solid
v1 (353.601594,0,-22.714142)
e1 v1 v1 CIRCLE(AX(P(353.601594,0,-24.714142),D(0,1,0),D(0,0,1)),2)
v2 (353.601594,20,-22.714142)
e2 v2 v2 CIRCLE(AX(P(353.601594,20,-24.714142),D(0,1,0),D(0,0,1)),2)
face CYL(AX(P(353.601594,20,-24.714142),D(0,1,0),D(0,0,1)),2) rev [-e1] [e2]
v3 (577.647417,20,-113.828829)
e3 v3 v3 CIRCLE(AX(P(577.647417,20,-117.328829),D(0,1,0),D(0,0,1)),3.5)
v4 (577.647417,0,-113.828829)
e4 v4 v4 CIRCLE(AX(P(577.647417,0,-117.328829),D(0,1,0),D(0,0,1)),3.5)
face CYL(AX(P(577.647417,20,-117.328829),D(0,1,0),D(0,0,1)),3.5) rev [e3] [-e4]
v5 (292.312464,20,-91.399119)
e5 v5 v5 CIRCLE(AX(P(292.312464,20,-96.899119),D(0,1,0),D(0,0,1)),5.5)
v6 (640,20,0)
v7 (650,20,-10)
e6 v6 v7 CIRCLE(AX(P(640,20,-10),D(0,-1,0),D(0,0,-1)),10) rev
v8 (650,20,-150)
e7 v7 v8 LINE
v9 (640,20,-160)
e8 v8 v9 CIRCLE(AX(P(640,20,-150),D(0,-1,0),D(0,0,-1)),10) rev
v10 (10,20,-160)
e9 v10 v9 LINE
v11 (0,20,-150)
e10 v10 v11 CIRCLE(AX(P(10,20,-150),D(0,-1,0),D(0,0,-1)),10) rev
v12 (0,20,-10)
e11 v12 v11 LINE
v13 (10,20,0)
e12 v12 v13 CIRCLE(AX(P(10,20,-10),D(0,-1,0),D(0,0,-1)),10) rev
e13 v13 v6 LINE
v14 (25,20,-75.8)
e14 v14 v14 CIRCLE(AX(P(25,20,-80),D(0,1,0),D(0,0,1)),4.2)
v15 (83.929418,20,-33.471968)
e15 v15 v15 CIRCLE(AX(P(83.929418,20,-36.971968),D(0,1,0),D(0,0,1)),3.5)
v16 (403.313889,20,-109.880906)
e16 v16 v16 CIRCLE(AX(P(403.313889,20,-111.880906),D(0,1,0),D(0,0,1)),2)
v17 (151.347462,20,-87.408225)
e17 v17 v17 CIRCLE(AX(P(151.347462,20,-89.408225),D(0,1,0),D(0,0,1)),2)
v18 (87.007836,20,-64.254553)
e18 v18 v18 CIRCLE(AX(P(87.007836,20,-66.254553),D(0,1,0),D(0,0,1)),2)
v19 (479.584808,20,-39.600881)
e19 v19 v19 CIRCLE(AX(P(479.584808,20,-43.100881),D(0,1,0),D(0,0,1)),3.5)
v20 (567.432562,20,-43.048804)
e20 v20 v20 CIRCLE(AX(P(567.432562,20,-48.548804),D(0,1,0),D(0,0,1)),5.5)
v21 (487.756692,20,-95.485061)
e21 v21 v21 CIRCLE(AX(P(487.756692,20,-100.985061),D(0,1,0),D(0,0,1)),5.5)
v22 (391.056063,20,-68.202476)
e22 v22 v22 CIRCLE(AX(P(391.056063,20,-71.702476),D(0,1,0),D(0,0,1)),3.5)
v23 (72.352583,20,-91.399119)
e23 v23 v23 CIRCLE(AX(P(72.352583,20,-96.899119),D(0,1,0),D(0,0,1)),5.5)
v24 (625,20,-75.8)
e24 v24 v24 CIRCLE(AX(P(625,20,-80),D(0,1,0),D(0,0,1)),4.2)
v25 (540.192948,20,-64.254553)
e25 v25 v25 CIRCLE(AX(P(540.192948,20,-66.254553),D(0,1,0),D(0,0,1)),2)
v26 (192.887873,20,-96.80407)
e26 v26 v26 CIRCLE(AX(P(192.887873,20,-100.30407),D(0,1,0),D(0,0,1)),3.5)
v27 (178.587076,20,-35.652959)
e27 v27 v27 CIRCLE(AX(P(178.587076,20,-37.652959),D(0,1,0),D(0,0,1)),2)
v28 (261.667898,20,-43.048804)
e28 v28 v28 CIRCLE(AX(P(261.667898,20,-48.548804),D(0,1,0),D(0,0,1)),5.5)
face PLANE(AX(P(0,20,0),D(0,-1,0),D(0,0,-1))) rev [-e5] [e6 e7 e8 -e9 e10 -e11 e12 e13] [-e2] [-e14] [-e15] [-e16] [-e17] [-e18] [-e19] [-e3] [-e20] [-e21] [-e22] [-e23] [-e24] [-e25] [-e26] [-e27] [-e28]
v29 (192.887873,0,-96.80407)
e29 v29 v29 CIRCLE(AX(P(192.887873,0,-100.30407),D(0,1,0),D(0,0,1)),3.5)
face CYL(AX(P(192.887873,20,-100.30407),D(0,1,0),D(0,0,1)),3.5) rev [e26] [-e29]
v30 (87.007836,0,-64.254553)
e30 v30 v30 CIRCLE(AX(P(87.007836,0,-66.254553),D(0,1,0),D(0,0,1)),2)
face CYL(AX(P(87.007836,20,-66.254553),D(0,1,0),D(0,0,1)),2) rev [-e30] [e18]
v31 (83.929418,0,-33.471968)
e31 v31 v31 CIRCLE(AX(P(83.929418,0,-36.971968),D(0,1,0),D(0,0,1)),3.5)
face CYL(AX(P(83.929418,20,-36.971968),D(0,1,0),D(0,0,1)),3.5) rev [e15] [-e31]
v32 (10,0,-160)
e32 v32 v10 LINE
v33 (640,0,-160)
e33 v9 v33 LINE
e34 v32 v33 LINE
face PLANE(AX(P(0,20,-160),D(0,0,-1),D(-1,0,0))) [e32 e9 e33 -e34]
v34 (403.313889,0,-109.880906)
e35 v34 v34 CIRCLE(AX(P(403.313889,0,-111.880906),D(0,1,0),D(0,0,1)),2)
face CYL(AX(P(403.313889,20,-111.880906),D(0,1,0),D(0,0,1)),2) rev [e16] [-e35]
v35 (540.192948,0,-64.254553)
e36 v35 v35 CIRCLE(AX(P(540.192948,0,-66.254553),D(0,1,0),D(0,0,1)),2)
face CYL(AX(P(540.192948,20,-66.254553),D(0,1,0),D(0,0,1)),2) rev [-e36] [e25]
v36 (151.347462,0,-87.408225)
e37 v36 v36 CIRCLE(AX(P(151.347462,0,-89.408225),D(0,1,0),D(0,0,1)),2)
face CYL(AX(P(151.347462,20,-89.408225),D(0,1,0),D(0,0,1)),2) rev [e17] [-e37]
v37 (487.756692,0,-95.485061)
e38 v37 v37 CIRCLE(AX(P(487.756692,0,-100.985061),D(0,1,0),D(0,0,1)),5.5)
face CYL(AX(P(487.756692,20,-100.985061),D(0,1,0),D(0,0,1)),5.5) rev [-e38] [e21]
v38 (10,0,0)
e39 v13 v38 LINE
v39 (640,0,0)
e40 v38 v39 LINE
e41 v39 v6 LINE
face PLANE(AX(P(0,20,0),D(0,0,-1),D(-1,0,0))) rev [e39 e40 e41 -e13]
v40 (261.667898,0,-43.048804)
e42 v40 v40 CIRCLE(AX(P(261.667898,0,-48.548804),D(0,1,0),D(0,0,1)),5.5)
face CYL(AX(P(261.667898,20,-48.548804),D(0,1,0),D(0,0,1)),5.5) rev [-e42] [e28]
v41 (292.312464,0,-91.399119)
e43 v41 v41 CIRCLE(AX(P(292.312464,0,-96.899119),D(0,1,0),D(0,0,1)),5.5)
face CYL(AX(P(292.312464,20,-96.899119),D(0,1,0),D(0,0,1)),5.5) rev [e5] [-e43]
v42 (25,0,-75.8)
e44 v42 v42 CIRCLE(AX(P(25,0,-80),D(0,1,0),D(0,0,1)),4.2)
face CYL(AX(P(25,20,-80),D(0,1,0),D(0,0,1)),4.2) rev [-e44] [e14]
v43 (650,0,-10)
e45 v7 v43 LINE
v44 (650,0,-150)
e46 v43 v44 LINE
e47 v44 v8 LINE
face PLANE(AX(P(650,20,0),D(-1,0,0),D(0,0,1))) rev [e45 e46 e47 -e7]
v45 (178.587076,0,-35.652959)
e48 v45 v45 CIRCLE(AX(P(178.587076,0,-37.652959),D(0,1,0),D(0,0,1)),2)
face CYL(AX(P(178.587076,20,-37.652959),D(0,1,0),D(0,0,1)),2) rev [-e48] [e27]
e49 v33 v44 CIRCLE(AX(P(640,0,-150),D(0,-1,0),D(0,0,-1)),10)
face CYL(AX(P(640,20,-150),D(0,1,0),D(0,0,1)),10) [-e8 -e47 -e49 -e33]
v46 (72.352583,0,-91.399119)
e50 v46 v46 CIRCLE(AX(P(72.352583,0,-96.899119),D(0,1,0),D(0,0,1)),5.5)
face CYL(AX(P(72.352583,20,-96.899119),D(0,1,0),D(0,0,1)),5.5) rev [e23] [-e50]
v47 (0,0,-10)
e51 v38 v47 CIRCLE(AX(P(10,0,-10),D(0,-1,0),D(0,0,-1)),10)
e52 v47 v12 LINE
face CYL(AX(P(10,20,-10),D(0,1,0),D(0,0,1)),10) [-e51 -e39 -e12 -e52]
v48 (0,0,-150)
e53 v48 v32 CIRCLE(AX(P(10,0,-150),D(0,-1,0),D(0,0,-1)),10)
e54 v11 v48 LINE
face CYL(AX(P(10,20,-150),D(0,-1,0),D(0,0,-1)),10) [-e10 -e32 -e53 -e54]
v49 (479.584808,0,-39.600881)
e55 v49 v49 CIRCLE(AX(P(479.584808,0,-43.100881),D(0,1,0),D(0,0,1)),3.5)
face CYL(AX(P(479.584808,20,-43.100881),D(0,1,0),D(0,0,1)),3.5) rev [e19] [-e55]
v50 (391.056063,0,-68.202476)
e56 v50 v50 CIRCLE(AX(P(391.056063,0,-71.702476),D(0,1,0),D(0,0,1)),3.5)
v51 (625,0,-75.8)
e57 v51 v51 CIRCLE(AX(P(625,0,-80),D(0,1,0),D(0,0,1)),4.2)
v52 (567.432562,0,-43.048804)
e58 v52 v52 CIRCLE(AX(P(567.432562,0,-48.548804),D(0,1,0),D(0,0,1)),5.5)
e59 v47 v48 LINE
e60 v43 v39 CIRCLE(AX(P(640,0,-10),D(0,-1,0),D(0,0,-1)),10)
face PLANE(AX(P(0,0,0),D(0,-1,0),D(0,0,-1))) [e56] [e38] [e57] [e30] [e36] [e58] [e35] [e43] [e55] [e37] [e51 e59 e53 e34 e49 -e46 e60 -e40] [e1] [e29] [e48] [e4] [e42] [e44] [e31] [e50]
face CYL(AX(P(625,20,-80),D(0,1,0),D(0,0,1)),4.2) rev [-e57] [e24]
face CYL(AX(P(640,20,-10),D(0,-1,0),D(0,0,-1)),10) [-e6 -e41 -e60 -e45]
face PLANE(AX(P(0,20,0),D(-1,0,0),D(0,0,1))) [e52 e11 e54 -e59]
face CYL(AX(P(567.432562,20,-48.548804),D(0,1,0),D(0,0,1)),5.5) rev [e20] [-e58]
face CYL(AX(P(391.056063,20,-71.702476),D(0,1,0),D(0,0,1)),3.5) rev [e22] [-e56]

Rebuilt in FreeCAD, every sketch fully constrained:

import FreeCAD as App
import Part
import Sketcher
from FreeCAD import Vector
Q = App.Units.Quantity


def edges_at(feature, points):
    """Names of the edges that pass closest to the given points."""
    edges = feature.Shape.Edges
    near = lambda p: min(range(len(edges)), key=lambda i: edges[i].distToShape(Part.Vertex(*p))[0])
    return sorted({f"Edge{near(p) + 1}" for p in points})

doc = App.newDocument("Part")
params = doc.addObject("Spreadsheet::Sheet", "Params")
for row, (alias, value) in enumerate([
    ("sketch1_width", "650 mm"),
    ("sketch1_height", "160 mm"),
    ("pad1_length", "20 mm"),
    ("fillet_radius", "10 mm"),
    ("sketch2_diameter", "11 mm"),
    ("hole_diameter", "11 mm"),
    ("sketch3_diameter", "7 mm"),
    ("hole2_diameter", "7 mm"),
    ("sketch4_diameter", "4 mm"),
    ("hole3_diameter", "4 mm"),
    ("sketch5_diameter", "8.4 mm"),
    ("hole4_diameter", "8.4 mm"),
], start=1):
    params.set(f"A{row}", alias)
    params.set(f"B{row}", "=" + value)
    params.setAlias(f"B{row}", alias)

body = doc.addObject("PartDesign::Body", "Body")

sketch1 = doc.addObject("Sketcher::SketchObject", "Sketch")
body.addObject(sketch1)
sketch1.AttachmentSupport = (doc.XZ_Plane, [""])
sketch1.MapMode = "FlatFace"
sketch1.addGeometry(Part.LineSegment(Vector(0, -160, 0), Vector(0, 0, 0)), False)
sketch1.addGeometry(Part.LineSegment(Vector(0, 0, 0), Vector(650, 0, 0)), False)
sketch1.addGeometry(Part.LineSegment(Vector(650, 0, 0), Vector(650, -160, 0)), False)
sketch1.addGeometry(Part.LineSegment(Vector(650, -160, 0), Vector(0, -160, 0)), False)
sketch1.addConstraint(Sketcher.Constraint("Coincident", 0, 2, 1, 1))
sketch1.addConstraint(Sketcher.Constraint("Coincident", 1, 2, 2, 1))
sketch1.addConstraint(Sketcher.Constraint("Coincident", 2, 2, 3, 1))
sketch1.addConstraint(Sketcher.Constraint("Coincident", 3, 2, 0, 1))
sketch1.addConstraint(Sketcher.Constraint("Vertical", 0))
sketch1.addConstraint(Sketcher.Constraint("Horizontal", 1))
sketch1.addConstraint(Sketcher.Constraint("Vertical", 2))
sketch1.addConstraint(Sketcher.Constraint("Horizontal", 3))
sketch1.addConstraint(Sketcher.Constraint("Coincident", 0, 2, -1, 1))
sketch1.addConstraint(Sketcher.Constraint("DistanceX", 1, 1, 1, 2, Q("650 mm")))
sketch1.addConstraint(Sketcher.Constraint("DistanceY", 0, 1, 0, 2, Q("160 mm")))
sketch1.setExpression("Constraints[9]", "Params.sketch1_width")
sketch1.setExpression("Constraints[10]", "Params.sketch1_height")
pad1 = doc.addObject("PartDesign::Pad", "Pad")
body.addObject(pad1)
pad1.Profile = sketch1
pad1.setExpression("Length", "Params.pad1_length")
pad1.Reversed = True
doc.recompute()

fillet = doc.addObject("PartDesign::Fillet", "Fillet")
body.addObject(fillet)
fillet.Base = (pad1, edges_at(pad1, [
    (0, 10, 0),
    (650, 10, 0),
    (650, 10, -160),
    (0, 10, -160),
]))
fillet.setExpression("Radius", "Params.fillet_radius")

sketch2 = doc.addObject("Sketcher::SketchObject", "Sketch001")
body.addObject(sketch2)
sketch2.AttachmentSupport = (doc.XZ_Plane, [""])
sketch2.MapMode = "FlatFace"
sketch2.AttachmentOffset = App.Placement(Vector(0, 0, -20), App.Rotation())
sketch2.addGeometry(Part.Circle(Vector(72, -97, 0), Vector(0, 0, 1), 6), False)
sketch2.addGeometry(Part.Circle(Vector(262, -49, 0), Vector(0, 0, 1), 6), False)
sketch2.addGeometry(Part.Circle(Vector(488, -101, 0), Vector(0, 0, 1), 6), False)
sketch2.addGeometry(Part.Circle(Vector(567, -49, 0), Vector(0, 0, 1), 6), False)
sketch2.addGeometry(Part.Circle(Vector(292, -97, 0), Vector(0, 0, 1), 6), False)
sketch2.addConstraint(Sketcher.Constraint("Equal", 0, 1))
sketch2.addConstraint(Sketcher.Constraint("Equal", 1, 2))
sketch2.addConstraint(Sketcher.Constraint("Equal", 2, 3))
sketch2.addConstraint(Sketcher.Constraint("Equal", 3, 4))
sketch2.addConstraint(Sketcher.Constraint("Horizontal", 1, 3, 3, 3))
sketch2.addConstraint(Sketcher.Constraint("Horizontal", 0, 3, 4, 3))
sketch2.addConstraint(Sketcher.Constraint("Diameter", 0, Q("11 mm")))
sketch2.addConstraint(Sketcher.Constraint("DistanceX", -1, 1, 1, 3, Q("261.667898 mm")))
sketch2.addConstraint(Sketcher.Constraint("DistanceX", 4, 3, 3, 3, Q("275.120099 mm")))
sketch2.addConstraint(Sketcher.Constraint("DistanceY", 0, 3, -1, 1, Q("96.899119 mm")))
sketch2.addConstraint(Sketcher.Constraint("DistanceY", 2, 3, -1, 1, Q("100.985061 mm")))
sketch2.addConstraint(Sketcher.Constraint("DistanceX", 0, 3, 2, 3, Q("415.404109 mm")))
sketch2.addConstraint(Sketcher.Constraint("DistanceX", 2, 3, 3, 3, Q("79.67587 mm")))
sketch2.addConstraint(Sketcher.Constraint("DistanceX", -1, 1, 0, 3, Q("72.352583 mm")))
sketch2.addConstraint(Sketcher.Constraint("DistanceY", 1, 3, -1, 1, Q("48.548804 mm")))
sketch2.setExpression("Constraints[6]", "Params.sketch2_diameter")
doc.recompute()
hole = doc.addObject("PartDesign::Hole", "Hole")
body.addObject(hole)
hole.Profile = sketch2
hole.ThreadType = "None"
hole.setExpression("Diameter", "Params.hole_diameter")
hole.DepthType = "ThroughAll"
hole.Reversed = True

sketch3 = doc.addObject("Sketcher::SketchObject", "Sketch002")
body.addObject(sketch3)
sketch3.AttachmentSupport = (doc.XZ_Plane, [""])
sketch3.MapMode = "FlatFace"
sketch3.AttachmentOffset = App.Placement(Vector(0, 0, -20), App.Rotation())
sketch3.addGeometry(Part.Circle(Vector(192.9, -100.3, 0), Vector(0, 0, 1), 3.5), False)
sketch3.addGeometry(Part.Circle(Vector(83.9, -37, 0), Vector(0, 0, 1), 3.5), False)
sketch3.addGeometry(Part.Circle(Vector(391.1, -71.7, 0), Vector(0, 0, 1), 3.5), False)
sketch3.addGeometry(Part.Circle(Vector(577.6, -117.3, 0), Vector(0, 0, 1), 3.5), False)
sketch3.addGeometry(Part.Circle(Vector(479.6, -43.1, 0), Vector(0, 0, 1), 3.5), False)
sketch3.addConstraint(Sketcher.Constraint("Equal", 0, 1))
sketch3.addConstraint(Sketcher.Constraint("Equal", 1, 2))
sketch3.addConstraint(Sketcher.Constraint("Equal", 2, 3))
sketch3.addConstraint(Sketcher.Constraint("Equal", 3, 4))
sketch3.addConstraint(Sketcher.Constraint("Diameter", 0, Q("7 mm")))
sketch3.addConstraint(Sketcher.Constraint("DistanceX", 1, 3, 3, 3, Q("493.717999 mm")))
sketch3.addConstraint(Sketcher.Constraint("DistanceY", 0, 3, 1, 3, Q("63.332102 mm")))
sketch3.addConstraint(Sketcher.Constraint("DistanceY", 0, 3, -1, 1, Q("100.30407 mm")))
sketch3.addConstraint(Sketcher.Constraint("DistanceX", -1, 1, 1, 3, Q("83.929418 mm")))
sketch3.addConstraint(Sketcher.Constraint("DistanceY", 3, 3, -1, 1, Q("117.328829 mm")))
sketch3.addConstraint(Sketcher.Constraint("DistanceY", 4, 3, -1, 1, Q("43.100881 mm")))
sketch3.addConstraint(Sketcher.Constraint("DistanceX", 0, 3, 2, 3, Q("198.16819 mm")))
sketch3.addConstraint(Sketcher.Constraint("DistanceX", 4, 3, 3, 3, Q("98.062609 mm")))
sketch3.addConstraint(Sketcher.Constraint("DistanceX", -1, 1, 0, 3, Q("192.887873 mm")))
sketch3.addConstraint(Sketcher.Constraint("DistanceY", 2, 3, -1, 1, Q("71.702476 mm")))
sketch3.setExpression("Constraints[4]", "Params.sketch3_diameter")
doc.recompute()
hole2 = doc.addObject("PartDesign::Hole", "Hole001")
body.addObject(hole2)
hole2.Profile = sketch3
hole2.ThreadType = "None"
hole2.setExpression("Diameter", "Params.hole2_diameter")
hole2.DepthType = "ThroughAll"
hole2.Reversed = True

sketch4 = doc.addObject("Sketcher::SketchObject", "Sketch003")
body.addObject(sketch4)
sketch4.AttachmentSupport = (doc.XZ_Plane, [""])
sketch4.MapMode = "FlatFace"
sketch4.AttachmentOffset = App.Placement(Vector(0, 0, -20), App.Rotation())
sketch4.addGeometry(Part.Circle(Vector(178.6, -37.7, 0), Vector(0, 0, 1), 2), False)
sketch4.addGeometry(Part.Circle(Vector(151.3, -89.4, 0), Vector(0, 0, 1), 2), False)
sketch4.addGeometry(Part.Circle(Vector(353.6, -24.7, 0), Vector(0, 0, 1), 2), False)
sketch4.addGeometry(Part.Circle(Vector(403.3, -111.9, 0), Vector(0, 0, 1), 2), False)
sketch4.addGeometry(Part.Circle(Vector(540.2, -66.3, 0), Vector(0, 0, 1), 2), False)
sketch4.addGeometry(Part.Circle(Vector(87, -66.3, 0), Vector(0, 0, 1), 2), False)
sketch4.addConstraint(Sketcher.Constraint("Equal", 0, 1))
sketch4.addConstraint(Sketcher.Constraint("Equal", 1, 2))
sketch4.addConstraint(Sketcher.Constraint("Equal", 2, 3))
sketch4.addConstraint(Sketcher.Constraint("Equal", 3, 4))
sketch4.addConstraint(Sketcher.Constraint("Equal", 4, 5))
sketch4.addConstraint(Sketcher.Constraint("Horizontal", 4, 3, 5, 3))
sketch4.addConstraint(Sketcher.Constraint("Diameter", 0, Q("4 mm")))
sketch4.addConstraint(Sketcher.Constraint("DistanceY", 0, 3, -1, 1, Q("37.652959 mm")))
sketch4.addConstraint(Sketcher.Constraint("DistanceX", -1, 1, 3, 3, Q("403.313889 mm")))
sketch4.addConstraint(Sketcher.Constraint("DistanceX", -1, 1, 4, 3, Q("540.192948 mm")))
sketch4.addConstraint(Sketcher.Constraint("DistanceX", 0, 3, 2, 3, Q("175.014518 mm")))
sketch4.addConstraint(Sketcher.Constraint("DistanceX", 1, 3, 2, 3, Q("202.254132 mm")))
sketch4.addConstraint(Sketcher.Constraint("DistanceY", 3, 3, 1, 3, Q("22.472681 mm")))
sketch4.addConstraint(Sketcher.Constraint("DistanceY", 4, 3, 2, 3, Q("41.540411 mm")))
sketch4.addConstraint(Sketcher.Constraint("DistanceY", 1, 3, 4, 3, Q("23.153672 mm")))
sketch4.addConstraint(Sketcher.Constraint("DistanceX", 5, 3, 0, 3, Q("91.57924 mm")))
sketch4.addConstraint(Sketcher.Constraint("DistanceX", -1, 1, 0, 3, Q("178.587076 mm")))
sketch4.addConstraint(Sketcher.Constraint("DistanceY", 1, 3, -1, 1, Q("89.408225 mm")))
sketch4.setExpression("Constraints[6]", "Params.sketch4_diameter")
doc.recompute()
hole3 = doc.addObject("PartDesign::Hole", "Hole002")
body.addObject(hole3)
hole3.Profile = sketch4
hole3.ThreadType = "None"
hole3.setExpression("Diameter", "Params.hole3_diameter")
hole3.DepthType = "ThroughAll"
hole3.Reversed = True

sketch5 = doc.addObject("Sketcher::SketchObject", "Sketch004")
body.addObject(sketch5)
sketch5.AttachmentSupport = (doc.XZ_Plane, [""])
sketch5.MapMode = "FlatFace"
sketch5.AttachmentOffset = App.Placement(Vector(0, 0, -20), App.Rotation())
sketch5.addGeometry(Part.Circle(Vector(625, -80, 0), Vector(0, 0, 1), 4.2), False)
sketch5.addGeometry(Part.Circle(Vector(25, -80, 0), Vector(0, 0, 1), 4.2), False)
sketch5.addConstraint(Sketcher.Constraint("Equal", 0, 1))
sketch5.addConstraint(Sketcher.Constraint("Horizontal", 0, 3, 1, 3))
sketch5.addConstraint(Sketcher.Constraint("Diameter", 0, Q("8.4 mm")))
sketch5.addConstraint(Sketcher.Constraint("DistanceX", -1, 1, 0, 3, Q("625 mm")))
sketch5.addConstraint(Sketcher.Constraint("DistanceY", 0, 3, -1, 1, Q("80 mm")))
sketch5.addConstraint(Sketcher.Constraint("DistanceX", -1, 1, 1, 3, Q("25 mm")))
sketch5.setExpression("Constraints[2]", "Params.sketch5_diameter")
doc.recompute()
hole4 = doc.addObject("PartDesign::Hole", "Hole003")
body.addObject(hole4)
hole4.Profile = sketch5
hole4.ThreadType = "None"
hole4.setExpression("Diameter", "Params.hole4_diameter")
hole4.DepthType = "ThroughAll"
hole4.Reversed = True

doc.recompute()
